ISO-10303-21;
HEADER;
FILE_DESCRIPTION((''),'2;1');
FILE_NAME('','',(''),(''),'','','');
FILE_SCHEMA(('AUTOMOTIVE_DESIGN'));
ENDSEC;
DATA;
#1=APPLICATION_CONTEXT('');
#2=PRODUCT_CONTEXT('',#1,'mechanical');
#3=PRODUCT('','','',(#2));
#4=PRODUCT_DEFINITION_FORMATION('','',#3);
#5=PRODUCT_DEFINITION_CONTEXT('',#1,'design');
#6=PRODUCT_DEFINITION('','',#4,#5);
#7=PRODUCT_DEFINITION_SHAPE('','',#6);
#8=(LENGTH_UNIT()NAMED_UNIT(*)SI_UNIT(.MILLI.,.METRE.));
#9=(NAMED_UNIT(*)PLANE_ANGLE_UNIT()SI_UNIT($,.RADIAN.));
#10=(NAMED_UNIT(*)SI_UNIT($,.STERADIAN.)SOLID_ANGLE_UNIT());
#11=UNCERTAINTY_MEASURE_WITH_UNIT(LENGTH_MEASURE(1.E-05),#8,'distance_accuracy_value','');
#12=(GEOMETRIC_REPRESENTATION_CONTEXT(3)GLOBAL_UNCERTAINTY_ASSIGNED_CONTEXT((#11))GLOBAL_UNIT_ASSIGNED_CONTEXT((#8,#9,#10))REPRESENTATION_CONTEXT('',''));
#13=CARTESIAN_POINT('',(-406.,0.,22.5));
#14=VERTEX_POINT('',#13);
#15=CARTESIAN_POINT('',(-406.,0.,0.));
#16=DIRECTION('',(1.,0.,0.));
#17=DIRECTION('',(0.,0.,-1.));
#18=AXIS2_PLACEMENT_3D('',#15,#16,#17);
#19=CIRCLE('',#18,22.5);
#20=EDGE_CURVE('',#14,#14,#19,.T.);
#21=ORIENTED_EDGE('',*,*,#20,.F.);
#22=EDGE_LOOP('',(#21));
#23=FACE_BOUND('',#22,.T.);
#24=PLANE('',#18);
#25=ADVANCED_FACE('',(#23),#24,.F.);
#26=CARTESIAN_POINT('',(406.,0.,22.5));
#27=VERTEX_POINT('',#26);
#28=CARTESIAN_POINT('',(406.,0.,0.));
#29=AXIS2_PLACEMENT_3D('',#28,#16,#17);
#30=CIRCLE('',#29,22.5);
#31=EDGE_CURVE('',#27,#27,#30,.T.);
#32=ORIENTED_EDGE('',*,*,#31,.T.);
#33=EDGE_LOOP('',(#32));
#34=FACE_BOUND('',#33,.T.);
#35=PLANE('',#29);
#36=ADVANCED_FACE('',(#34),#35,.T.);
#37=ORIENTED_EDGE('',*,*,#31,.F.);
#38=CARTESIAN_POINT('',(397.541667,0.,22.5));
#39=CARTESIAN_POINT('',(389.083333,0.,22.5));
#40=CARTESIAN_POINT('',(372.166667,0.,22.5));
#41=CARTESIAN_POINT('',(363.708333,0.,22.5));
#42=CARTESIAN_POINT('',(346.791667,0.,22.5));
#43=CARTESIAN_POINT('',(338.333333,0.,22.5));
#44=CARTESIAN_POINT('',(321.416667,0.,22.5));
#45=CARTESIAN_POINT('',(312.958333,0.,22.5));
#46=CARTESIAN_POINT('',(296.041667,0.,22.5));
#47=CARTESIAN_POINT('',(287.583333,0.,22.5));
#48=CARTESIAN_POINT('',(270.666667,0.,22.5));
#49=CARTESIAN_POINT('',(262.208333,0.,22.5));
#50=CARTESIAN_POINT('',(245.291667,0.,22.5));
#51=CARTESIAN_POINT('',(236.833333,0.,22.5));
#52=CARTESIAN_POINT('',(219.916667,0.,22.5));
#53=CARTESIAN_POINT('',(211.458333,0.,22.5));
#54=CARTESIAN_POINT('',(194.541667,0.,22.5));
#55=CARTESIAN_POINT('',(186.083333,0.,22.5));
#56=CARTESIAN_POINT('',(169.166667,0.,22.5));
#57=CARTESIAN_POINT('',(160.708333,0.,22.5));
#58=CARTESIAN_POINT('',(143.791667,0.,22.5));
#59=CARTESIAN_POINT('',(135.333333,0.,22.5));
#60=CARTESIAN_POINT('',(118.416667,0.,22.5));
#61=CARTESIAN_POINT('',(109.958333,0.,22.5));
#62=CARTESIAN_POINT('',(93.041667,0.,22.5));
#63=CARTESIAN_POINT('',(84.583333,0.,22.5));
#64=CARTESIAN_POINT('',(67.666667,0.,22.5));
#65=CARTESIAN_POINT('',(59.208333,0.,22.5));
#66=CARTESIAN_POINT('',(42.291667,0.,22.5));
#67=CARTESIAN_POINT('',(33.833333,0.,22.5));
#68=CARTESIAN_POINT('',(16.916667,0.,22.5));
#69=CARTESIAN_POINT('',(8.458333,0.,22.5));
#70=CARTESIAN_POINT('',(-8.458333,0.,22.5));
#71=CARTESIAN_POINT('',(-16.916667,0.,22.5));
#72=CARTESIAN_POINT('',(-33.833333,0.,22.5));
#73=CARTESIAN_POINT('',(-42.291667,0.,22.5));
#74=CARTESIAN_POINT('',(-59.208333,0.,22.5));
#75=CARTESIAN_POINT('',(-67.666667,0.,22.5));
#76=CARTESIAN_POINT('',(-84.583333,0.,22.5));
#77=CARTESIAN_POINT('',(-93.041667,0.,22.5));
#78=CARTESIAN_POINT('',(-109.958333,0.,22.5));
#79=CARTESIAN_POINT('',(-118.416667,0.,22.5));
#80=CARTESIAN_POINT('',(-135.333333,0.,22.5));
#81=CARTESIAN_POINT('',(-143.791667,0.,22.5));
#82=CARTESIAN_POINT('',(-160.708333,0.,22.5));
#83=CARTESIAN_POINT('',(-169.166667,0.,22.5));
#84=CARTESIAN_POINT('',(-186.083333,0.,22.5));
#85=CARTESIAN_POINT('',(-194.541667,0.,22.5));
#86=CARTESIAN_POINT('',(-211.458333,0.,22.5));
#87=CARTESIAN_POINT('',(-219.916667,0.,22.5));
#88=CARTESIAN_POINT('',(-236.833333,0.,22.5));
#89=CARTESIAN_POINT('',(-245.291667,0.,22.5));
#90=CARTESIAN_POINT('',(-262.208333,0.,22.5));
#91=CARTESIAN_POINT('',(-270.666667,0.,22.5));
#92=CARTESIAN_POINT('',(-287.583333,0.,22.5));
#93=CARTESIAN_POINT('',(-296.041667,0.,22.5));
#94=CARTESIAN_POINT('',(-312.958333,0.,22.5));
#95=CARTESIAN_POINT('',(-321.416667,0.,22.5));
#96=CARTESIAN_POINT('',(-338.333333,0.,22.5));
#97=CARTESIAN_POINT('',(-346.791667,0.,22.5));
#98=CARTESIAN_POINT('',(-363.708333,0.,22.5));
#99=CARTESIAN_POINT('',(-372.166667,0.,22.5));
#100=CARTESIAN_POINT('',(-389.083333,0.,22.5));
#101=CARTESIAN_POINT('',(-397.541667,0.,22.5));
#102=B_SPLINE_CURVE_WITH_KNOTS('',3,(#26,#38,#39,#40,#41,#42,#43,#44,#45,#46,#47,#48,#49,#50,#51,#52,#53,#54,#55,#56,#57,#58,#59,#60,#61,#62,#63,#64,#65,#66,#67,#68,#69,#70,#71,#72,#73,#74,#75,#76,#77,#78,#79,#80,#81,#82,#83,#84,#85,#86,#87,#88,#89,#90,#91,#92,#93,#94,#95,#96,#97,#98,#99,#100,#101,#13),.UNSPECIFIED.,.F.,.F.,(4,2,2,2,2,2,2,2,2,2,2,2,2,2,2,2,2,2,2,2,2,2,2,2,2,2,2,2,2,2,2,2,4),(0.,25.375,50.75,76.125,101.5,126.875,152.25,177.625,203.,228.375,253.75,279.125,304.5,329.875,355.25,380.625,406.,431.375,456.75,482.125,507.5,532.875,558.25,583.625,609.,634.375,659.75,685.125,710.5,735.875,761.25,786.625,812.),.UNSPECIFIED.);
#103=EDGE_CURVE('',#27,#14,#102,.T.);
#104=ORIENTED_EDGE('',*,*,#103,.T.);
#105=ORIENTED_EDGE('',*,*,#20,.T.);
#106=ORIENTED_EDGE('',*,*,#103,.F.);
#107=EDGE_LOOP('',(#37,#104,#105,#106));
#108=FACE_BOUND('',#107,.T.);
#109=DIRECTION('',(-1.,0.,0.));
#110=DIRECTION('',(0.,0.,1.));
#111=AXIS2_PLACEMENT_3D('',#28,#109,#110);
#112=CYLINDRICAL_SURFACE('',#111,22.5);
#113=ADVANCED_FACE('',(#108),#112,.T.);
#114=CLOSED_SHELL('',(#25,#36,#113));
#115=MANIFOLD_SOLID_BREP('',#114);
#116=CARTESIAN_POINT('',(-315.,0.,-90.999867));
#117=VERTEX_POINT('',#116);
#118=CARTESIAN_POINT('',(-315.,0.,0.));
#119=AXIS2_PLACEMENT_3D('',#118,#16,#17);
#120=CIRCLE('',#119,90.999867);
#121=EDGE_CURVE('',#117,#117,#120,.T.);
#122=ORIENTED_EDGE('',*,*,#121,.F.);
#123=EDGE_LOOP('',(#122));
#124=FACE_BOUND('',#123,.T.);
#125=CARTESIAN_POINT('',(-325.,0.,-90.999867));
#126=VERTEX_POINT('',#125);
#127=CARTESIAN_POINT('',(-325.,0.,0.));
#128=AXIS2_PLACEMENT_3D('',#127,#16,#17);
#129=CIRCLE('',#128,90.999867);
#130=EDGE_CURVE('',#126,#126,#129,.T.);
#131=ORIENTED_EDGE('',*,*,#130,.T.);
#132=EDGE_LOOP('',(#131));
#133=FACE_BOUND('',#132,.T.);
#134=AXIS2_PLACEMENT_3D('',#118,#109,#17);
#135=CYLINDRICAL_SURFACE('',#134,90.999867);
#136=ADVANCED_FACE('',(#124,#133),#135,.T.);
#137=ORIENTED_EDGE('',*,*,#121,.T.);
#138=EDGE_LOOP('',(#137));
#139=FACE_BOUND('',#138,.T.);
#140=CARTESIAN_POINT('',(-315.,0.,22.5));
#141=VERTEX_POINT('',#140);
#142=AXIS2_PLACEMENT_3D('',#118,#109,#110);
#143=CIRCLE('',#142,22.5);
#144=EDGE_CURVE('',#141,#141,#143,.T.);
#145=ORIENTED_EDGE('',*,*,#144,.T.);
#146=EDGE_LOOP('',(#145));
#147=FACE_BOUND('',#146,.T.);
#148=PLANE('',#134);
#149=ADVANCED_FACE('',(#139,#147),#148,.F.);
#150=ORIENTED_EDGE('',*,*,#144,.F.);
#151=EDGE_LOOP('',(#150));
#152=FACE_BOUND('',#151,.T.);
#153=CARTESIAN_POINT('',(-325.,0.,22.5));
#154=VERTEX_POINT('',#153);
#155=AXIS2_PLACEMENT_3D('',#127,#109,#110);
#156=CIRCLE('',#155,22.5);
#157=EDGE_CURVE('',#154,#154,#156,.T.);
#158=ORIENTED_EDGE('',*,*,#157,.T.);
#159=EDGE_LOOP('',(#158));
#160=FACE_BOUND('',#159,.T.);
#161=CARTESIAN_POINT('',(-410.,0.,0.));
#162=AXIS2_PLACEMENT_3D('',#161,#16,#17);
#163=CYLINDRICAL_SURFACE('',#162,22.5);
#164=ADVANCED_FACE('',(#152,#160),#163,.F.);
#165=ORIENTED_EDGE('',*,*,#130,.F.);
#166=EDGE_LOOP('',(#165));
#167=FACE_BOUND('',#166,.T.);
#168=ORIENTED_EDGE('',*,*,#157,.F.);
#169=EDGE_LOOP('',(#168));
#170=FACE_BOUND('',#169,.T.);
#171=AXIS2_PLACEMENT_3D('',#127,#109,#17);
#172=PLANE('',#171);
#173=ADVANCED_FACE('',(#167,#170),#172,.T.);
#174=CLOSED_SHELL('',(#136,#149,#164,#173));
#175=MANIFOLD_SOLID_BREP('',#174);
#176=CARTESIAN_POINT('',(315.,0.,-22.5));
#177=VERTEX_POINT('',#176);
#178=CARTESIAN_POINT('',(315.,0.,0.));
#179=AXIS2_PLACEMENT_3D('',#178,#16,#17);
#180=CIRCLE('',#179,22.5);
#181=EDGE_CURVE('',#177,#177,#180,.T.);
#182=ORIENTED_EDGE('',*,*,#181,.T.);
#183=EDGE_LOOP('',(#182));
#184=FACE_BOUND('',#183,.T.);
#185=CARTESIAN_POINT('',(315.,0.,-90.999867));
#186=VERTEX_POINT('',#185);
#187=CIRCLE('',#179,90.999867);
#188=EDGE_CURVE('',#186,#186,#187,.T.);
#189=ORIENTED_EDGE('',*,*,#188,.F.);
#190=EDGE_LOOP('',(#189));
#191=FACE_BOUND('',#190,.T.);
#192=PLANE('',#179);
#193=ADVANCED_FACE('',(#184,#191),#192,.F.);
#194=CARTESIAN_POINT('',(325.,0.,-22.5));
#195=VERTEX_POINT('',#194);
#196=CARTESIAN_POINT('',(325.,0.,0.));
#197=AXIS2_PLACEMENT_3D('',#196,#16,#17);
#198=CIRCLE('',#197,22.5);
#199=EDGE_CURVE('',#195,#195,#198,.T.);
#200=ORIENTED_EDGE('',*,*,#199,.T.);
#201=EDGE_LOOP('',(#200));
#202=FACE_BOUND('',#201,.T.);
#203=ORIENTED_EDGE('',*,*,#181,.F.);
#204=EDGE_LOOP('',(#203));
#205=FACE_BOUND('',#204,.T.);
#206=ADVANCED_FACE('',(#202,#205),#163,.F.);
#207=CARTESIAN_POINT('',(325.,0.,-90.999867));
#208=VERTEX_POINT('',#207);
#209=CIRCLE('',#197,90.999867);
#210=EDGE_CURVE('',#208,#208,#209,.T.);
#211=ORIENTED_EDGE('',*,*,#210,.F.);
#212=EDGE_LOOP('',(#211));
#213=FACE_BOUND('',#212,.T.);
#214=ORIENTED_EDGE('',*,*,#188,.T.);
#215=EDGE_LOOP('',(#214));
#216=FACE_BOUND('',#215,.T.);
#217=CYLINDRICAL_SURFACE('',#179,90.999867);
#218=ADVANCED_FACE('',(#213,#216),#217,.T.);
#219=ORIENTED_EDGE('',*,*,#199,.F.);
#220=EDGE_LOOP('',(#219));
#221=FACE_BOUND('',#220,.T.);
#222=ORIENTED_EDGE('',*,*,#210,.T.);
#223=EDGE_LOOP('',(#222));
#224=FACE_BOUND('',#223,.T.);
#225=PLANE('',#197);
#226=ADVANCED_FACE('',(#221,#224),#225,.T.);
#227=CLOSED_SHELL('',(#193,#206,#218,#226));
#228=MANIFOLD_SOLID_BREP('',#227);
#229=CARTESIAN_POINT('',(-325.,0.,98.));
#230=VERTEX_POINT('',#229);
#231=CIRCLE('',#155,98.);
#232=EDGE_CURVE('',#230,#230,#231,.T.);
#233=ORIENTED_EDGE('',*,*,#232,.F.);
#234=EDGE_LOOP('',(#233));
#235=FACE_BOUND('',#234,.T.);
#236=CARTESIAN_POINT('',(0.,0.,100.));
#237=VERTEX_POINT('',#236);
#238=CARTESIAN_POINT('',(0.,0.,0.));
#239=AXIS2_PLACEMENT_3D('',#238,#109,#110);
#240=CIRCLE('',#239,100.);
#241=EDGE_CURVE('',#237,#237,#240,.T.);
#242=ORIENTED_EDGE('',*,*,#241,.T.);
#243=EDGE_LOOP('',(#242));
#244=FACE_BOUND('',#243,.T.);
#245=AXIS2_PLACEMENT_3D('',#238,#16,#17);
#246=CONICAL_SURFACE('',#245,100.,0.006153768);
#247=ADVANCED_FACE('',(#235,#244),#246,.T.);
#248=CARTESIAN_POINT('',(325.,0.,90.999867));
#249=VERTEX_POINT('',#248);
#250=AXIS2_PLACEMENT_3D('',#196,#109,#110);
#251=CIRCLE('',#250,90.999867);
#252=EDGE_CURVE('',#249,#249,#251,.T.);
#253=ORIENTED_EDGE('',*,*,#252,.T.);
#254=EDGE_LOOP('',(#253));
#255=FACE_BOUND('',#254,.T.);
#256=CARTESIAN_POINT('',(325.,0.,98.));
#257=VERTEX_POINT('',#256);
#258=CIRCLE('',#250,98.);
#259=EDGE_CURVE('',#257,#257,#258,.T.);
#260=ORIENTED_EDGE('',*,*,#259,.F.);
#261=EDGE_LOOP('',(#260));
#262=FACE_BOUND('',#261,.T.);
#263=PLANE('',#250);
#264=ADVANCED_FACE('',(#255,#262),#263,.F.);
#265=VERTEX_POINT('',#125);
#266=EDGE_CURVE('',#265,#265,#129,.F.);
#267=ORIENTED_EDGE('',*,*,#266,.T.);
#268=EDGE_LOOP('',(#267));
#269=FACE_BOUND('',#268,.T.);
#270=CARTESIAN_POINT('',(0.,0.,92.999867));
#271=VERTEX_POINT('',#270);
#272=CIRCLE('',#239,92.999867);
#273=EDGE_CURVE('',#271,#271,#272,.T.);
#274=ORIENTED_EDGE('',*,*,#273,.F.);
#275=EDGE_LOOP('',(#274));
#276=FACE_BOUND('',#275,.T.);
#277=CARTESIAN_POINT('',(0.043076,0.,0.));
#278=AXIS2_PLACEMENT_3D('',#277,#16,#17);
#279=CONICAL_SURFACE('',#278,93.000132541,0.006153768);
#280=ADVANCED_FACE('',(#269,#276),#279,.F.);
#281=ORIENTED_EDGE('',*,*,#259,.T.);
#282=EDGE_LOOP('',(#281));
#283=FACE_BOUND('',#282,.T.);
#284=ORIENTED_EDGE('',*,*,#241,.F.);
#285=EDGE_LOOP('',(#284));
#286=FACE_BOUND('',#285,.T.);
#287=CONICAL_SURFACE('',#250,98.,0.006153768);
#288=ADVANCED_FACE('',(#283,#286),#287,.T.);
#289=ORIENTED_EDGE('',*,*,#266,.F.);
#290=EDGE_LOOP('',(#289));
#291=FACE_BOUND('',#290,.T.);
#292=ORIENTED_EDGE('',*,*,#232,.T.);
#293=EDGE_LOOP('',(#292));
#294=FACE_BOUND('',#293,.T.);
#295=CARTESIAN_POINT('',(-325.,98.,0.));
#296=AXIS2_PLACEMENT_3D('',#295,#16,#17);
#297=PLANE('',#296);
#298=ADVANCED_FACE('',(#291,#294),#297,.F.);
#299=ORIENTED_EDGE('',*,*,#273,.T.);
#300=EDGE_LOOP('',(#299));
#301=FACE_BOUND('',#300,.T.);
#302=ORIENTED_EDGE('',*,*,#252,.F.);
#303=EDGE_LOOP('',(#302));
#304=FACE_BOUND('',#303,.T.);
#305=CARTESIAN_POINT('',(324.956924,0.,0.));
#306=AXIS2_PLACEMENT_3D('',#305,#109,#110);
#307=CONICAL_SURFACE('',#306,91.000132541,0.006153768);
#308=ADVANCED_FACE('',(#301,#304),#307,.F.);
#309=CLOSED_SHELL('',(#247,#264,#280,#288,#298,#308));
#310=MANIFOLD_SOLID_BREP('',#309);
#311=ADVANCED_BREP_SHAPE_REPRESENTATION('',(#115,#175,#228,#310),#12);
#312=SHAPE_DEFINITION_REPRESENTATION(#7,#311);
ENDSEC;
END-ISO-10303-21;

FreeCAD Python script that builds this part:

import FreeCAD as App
import Part
import Sketcher

V = App.Vector


def faces_at(feature, points):
    """Names of the faces that lie closest to the given points."""
    faces = feature.Shape.Faces
    near = lambda p: min(range(len(faces)), key=lambda i: faces[i].distToShape(Part.Vertex(*p))[0])
    return sorted({f"Face{near(p) + 1}" for p in points})


def add_polygon(sketch, points):
    """Adds a closed chain of lines whose ends are joined by coincident constraints."""
    first, n = sketch.GeometryCount, len(points)
    for a, b in zip(points, points[1:] + points[:1]):
        sketch.addGeometry(Part.LineSegment(App.Vector(*a, 0), App.Vector(*b, 0)), False)
    for i in range(n):
        sketch.addConstraint(Sketcher.Constraint("Coincident", first + i, 2, first + (i + 1) % n, 1))

doc = App.newDocument("Part")
body = doc.addObject("PartDesign::Body", "Body")

# Sketch on XY plane
sketch1 = body.newObject("Sketcher::SketchObject", "Sketch")
sketch1.AttachmentSupport = (doc.getObject("XY_Plane"), [""])
sketch1.MapMode = "FlatFace"
add_polygon(sketch1, [(0, 100), (-325, 98), (-325, 0), (325, 0), (325, 98)])  # lines 0-4
sketch1.addConstraint([
    Sketcher.Constraint("Vertical", 1),
    Sketcher.Constraint("Horizontal", 2),
    Sketcher.Constraint("Vertical", 3),
    Sketcher.Constraint("Symmetric", 1, 2, 2, 2, -1, 1),
    Sketcher.Constraint("PointOnObject", 4, 2, -2),
    Sketcher.Constraint("Horizontal", 0, 2, 3, 2),
    Sketcher.Constraint("DistanceX", 2, 1, 2, 2, 650.0),
    Sketcher.Constraint("DistanceY", 1, 2, 1, 1, 98.0),
    Sketcher.Constraint("DistanceY", -1, 1, 4, 2, 100.0),
])
revolution = body.newObject("PartDesign::Revolution", "Revolution")
revolution.Profile = sketch1
revolution.ReferenceAxis = (sketch1, ["H_Axis"])
revolution.Angle = 360
doc.recompute()

thickness = body.newObject("PartDesign::Thickness", "Thickness")
thickness.Base = (revolution, faces_at(revolution, [(325, 0, 0), (-325, 0, 0)]))
thickness.Value = 7
thickness.Reversed = True
thickness.Join = "Arc"
body2 = doc.addObject("PartDesign::Body", "Body001")

# Sketch on YZ plane
sketch2 = body2.newObject("Sketcher::SketchObject", "Sketch001")
sketch2.AttachmentSupport = (doc.getObject("YZ_Plane001"), [""])
sketch2.MapMode = "FlatFace"
sketch2.AttachmentOffset = App.Placement(V(0, 0, 325), App.Rotation())
sketch2.addGeometry(Part.Circle(V(0, 0, 0), V(0, 0, 1), 90.999867), False)
sketch2.addConstraint([
    Sketcher.Constraint("Coincident", 0, 3, -1, 1),
    Sketcher.Constraint("Diameter", 0, 181.999735),
])
pad1 = body2.newObject("PartDesign::Pad", "Pad")
pad1.Profile = sketch2
pad1.Length = 10
pad1.Reversed = True
body3 = doc.addObject("PartDesign::Body", "Body002")
doc.recompute()

mirroring = doc.addObject("Part::Mirroring", "Mirroring")
mirroring.Source = body2
mirroring.Base = V(0, 0, 0)
mirroring.Normal = V(1, 0, 0)
body3.BaseFeature = mirroring
doc.recompute()
body4 = doc.addObject("PartDesign::Body", "Body003")

# Sketch on YZ plane
sketch3 = body4.newObject("Sketcher::SketchObject", "Sketch002")
sketch3.AttachmentSupport = (doc.getObject("YZ_Plane003"), [""])
sketch3.MapMode = "FlatFace"
sketch3.AttachmentOffset = App.Placement(V(0, 0, 325), App.Rotation())
sketch3.addGeometry(Part.Circle(V(0, 0, 0), V(0, 0, 1), 22.5), False)
sketch3.addConstraint([
    Sketcher.Constraint("Coincident", 0, 3, -1, 1),
    Sketcher.Constraint("Diameter", 0, 45.0),
])
pad2 = body4.newObject("PartDesign::Pad", "Pad001")
pad2.Profile = sketch3
pad2.Length = 735
pad2.Reversed = True
doc.recompute()

body5 = doc.addObject("PartDesign::Body", "Body004")
body5.BaseFeature = body4
boolean = body2.newObject("PartDesign::Boolean", "Boolean")
boolean.Type = "Cut"
boolean.addObjects([body5])
doc.recompute()

boolean2 = body3.newObject("PartDesign::Boolean", "Boolean001")
boolean2.Type = "Cut"
boolean2.addObjects([body4])
body6 = doc.addObject("PartDesign::Body", "Body005")

# Sketch on YZ plane
sketch4 = body6.newObject("Sketcher::SketchObject", "Sketch003")
sketch4.AttachmentSupport = (doc.getObject("YZ_Plane005"), [""])
sketch4.MapMode = "FlatFace"
sketch4.addGeometry(Part.Circle(V(0, 0, 0), V(0, 0, 1), 22.5), False)
sketch4.addConstraint([
    Sketcher.Constraint("Coincident", 0, 3, -1, 1),
    Sketcher.Constraint("Diameter", 0, 45.0),
])
pad3 = body6.newObject("PartDesign::Pad", "Pad002")
pad3.Profile = sketch4
pad3.Length = 812
pad3.Midplane = True
mirroring.Visibility = False

doc.recompute()
